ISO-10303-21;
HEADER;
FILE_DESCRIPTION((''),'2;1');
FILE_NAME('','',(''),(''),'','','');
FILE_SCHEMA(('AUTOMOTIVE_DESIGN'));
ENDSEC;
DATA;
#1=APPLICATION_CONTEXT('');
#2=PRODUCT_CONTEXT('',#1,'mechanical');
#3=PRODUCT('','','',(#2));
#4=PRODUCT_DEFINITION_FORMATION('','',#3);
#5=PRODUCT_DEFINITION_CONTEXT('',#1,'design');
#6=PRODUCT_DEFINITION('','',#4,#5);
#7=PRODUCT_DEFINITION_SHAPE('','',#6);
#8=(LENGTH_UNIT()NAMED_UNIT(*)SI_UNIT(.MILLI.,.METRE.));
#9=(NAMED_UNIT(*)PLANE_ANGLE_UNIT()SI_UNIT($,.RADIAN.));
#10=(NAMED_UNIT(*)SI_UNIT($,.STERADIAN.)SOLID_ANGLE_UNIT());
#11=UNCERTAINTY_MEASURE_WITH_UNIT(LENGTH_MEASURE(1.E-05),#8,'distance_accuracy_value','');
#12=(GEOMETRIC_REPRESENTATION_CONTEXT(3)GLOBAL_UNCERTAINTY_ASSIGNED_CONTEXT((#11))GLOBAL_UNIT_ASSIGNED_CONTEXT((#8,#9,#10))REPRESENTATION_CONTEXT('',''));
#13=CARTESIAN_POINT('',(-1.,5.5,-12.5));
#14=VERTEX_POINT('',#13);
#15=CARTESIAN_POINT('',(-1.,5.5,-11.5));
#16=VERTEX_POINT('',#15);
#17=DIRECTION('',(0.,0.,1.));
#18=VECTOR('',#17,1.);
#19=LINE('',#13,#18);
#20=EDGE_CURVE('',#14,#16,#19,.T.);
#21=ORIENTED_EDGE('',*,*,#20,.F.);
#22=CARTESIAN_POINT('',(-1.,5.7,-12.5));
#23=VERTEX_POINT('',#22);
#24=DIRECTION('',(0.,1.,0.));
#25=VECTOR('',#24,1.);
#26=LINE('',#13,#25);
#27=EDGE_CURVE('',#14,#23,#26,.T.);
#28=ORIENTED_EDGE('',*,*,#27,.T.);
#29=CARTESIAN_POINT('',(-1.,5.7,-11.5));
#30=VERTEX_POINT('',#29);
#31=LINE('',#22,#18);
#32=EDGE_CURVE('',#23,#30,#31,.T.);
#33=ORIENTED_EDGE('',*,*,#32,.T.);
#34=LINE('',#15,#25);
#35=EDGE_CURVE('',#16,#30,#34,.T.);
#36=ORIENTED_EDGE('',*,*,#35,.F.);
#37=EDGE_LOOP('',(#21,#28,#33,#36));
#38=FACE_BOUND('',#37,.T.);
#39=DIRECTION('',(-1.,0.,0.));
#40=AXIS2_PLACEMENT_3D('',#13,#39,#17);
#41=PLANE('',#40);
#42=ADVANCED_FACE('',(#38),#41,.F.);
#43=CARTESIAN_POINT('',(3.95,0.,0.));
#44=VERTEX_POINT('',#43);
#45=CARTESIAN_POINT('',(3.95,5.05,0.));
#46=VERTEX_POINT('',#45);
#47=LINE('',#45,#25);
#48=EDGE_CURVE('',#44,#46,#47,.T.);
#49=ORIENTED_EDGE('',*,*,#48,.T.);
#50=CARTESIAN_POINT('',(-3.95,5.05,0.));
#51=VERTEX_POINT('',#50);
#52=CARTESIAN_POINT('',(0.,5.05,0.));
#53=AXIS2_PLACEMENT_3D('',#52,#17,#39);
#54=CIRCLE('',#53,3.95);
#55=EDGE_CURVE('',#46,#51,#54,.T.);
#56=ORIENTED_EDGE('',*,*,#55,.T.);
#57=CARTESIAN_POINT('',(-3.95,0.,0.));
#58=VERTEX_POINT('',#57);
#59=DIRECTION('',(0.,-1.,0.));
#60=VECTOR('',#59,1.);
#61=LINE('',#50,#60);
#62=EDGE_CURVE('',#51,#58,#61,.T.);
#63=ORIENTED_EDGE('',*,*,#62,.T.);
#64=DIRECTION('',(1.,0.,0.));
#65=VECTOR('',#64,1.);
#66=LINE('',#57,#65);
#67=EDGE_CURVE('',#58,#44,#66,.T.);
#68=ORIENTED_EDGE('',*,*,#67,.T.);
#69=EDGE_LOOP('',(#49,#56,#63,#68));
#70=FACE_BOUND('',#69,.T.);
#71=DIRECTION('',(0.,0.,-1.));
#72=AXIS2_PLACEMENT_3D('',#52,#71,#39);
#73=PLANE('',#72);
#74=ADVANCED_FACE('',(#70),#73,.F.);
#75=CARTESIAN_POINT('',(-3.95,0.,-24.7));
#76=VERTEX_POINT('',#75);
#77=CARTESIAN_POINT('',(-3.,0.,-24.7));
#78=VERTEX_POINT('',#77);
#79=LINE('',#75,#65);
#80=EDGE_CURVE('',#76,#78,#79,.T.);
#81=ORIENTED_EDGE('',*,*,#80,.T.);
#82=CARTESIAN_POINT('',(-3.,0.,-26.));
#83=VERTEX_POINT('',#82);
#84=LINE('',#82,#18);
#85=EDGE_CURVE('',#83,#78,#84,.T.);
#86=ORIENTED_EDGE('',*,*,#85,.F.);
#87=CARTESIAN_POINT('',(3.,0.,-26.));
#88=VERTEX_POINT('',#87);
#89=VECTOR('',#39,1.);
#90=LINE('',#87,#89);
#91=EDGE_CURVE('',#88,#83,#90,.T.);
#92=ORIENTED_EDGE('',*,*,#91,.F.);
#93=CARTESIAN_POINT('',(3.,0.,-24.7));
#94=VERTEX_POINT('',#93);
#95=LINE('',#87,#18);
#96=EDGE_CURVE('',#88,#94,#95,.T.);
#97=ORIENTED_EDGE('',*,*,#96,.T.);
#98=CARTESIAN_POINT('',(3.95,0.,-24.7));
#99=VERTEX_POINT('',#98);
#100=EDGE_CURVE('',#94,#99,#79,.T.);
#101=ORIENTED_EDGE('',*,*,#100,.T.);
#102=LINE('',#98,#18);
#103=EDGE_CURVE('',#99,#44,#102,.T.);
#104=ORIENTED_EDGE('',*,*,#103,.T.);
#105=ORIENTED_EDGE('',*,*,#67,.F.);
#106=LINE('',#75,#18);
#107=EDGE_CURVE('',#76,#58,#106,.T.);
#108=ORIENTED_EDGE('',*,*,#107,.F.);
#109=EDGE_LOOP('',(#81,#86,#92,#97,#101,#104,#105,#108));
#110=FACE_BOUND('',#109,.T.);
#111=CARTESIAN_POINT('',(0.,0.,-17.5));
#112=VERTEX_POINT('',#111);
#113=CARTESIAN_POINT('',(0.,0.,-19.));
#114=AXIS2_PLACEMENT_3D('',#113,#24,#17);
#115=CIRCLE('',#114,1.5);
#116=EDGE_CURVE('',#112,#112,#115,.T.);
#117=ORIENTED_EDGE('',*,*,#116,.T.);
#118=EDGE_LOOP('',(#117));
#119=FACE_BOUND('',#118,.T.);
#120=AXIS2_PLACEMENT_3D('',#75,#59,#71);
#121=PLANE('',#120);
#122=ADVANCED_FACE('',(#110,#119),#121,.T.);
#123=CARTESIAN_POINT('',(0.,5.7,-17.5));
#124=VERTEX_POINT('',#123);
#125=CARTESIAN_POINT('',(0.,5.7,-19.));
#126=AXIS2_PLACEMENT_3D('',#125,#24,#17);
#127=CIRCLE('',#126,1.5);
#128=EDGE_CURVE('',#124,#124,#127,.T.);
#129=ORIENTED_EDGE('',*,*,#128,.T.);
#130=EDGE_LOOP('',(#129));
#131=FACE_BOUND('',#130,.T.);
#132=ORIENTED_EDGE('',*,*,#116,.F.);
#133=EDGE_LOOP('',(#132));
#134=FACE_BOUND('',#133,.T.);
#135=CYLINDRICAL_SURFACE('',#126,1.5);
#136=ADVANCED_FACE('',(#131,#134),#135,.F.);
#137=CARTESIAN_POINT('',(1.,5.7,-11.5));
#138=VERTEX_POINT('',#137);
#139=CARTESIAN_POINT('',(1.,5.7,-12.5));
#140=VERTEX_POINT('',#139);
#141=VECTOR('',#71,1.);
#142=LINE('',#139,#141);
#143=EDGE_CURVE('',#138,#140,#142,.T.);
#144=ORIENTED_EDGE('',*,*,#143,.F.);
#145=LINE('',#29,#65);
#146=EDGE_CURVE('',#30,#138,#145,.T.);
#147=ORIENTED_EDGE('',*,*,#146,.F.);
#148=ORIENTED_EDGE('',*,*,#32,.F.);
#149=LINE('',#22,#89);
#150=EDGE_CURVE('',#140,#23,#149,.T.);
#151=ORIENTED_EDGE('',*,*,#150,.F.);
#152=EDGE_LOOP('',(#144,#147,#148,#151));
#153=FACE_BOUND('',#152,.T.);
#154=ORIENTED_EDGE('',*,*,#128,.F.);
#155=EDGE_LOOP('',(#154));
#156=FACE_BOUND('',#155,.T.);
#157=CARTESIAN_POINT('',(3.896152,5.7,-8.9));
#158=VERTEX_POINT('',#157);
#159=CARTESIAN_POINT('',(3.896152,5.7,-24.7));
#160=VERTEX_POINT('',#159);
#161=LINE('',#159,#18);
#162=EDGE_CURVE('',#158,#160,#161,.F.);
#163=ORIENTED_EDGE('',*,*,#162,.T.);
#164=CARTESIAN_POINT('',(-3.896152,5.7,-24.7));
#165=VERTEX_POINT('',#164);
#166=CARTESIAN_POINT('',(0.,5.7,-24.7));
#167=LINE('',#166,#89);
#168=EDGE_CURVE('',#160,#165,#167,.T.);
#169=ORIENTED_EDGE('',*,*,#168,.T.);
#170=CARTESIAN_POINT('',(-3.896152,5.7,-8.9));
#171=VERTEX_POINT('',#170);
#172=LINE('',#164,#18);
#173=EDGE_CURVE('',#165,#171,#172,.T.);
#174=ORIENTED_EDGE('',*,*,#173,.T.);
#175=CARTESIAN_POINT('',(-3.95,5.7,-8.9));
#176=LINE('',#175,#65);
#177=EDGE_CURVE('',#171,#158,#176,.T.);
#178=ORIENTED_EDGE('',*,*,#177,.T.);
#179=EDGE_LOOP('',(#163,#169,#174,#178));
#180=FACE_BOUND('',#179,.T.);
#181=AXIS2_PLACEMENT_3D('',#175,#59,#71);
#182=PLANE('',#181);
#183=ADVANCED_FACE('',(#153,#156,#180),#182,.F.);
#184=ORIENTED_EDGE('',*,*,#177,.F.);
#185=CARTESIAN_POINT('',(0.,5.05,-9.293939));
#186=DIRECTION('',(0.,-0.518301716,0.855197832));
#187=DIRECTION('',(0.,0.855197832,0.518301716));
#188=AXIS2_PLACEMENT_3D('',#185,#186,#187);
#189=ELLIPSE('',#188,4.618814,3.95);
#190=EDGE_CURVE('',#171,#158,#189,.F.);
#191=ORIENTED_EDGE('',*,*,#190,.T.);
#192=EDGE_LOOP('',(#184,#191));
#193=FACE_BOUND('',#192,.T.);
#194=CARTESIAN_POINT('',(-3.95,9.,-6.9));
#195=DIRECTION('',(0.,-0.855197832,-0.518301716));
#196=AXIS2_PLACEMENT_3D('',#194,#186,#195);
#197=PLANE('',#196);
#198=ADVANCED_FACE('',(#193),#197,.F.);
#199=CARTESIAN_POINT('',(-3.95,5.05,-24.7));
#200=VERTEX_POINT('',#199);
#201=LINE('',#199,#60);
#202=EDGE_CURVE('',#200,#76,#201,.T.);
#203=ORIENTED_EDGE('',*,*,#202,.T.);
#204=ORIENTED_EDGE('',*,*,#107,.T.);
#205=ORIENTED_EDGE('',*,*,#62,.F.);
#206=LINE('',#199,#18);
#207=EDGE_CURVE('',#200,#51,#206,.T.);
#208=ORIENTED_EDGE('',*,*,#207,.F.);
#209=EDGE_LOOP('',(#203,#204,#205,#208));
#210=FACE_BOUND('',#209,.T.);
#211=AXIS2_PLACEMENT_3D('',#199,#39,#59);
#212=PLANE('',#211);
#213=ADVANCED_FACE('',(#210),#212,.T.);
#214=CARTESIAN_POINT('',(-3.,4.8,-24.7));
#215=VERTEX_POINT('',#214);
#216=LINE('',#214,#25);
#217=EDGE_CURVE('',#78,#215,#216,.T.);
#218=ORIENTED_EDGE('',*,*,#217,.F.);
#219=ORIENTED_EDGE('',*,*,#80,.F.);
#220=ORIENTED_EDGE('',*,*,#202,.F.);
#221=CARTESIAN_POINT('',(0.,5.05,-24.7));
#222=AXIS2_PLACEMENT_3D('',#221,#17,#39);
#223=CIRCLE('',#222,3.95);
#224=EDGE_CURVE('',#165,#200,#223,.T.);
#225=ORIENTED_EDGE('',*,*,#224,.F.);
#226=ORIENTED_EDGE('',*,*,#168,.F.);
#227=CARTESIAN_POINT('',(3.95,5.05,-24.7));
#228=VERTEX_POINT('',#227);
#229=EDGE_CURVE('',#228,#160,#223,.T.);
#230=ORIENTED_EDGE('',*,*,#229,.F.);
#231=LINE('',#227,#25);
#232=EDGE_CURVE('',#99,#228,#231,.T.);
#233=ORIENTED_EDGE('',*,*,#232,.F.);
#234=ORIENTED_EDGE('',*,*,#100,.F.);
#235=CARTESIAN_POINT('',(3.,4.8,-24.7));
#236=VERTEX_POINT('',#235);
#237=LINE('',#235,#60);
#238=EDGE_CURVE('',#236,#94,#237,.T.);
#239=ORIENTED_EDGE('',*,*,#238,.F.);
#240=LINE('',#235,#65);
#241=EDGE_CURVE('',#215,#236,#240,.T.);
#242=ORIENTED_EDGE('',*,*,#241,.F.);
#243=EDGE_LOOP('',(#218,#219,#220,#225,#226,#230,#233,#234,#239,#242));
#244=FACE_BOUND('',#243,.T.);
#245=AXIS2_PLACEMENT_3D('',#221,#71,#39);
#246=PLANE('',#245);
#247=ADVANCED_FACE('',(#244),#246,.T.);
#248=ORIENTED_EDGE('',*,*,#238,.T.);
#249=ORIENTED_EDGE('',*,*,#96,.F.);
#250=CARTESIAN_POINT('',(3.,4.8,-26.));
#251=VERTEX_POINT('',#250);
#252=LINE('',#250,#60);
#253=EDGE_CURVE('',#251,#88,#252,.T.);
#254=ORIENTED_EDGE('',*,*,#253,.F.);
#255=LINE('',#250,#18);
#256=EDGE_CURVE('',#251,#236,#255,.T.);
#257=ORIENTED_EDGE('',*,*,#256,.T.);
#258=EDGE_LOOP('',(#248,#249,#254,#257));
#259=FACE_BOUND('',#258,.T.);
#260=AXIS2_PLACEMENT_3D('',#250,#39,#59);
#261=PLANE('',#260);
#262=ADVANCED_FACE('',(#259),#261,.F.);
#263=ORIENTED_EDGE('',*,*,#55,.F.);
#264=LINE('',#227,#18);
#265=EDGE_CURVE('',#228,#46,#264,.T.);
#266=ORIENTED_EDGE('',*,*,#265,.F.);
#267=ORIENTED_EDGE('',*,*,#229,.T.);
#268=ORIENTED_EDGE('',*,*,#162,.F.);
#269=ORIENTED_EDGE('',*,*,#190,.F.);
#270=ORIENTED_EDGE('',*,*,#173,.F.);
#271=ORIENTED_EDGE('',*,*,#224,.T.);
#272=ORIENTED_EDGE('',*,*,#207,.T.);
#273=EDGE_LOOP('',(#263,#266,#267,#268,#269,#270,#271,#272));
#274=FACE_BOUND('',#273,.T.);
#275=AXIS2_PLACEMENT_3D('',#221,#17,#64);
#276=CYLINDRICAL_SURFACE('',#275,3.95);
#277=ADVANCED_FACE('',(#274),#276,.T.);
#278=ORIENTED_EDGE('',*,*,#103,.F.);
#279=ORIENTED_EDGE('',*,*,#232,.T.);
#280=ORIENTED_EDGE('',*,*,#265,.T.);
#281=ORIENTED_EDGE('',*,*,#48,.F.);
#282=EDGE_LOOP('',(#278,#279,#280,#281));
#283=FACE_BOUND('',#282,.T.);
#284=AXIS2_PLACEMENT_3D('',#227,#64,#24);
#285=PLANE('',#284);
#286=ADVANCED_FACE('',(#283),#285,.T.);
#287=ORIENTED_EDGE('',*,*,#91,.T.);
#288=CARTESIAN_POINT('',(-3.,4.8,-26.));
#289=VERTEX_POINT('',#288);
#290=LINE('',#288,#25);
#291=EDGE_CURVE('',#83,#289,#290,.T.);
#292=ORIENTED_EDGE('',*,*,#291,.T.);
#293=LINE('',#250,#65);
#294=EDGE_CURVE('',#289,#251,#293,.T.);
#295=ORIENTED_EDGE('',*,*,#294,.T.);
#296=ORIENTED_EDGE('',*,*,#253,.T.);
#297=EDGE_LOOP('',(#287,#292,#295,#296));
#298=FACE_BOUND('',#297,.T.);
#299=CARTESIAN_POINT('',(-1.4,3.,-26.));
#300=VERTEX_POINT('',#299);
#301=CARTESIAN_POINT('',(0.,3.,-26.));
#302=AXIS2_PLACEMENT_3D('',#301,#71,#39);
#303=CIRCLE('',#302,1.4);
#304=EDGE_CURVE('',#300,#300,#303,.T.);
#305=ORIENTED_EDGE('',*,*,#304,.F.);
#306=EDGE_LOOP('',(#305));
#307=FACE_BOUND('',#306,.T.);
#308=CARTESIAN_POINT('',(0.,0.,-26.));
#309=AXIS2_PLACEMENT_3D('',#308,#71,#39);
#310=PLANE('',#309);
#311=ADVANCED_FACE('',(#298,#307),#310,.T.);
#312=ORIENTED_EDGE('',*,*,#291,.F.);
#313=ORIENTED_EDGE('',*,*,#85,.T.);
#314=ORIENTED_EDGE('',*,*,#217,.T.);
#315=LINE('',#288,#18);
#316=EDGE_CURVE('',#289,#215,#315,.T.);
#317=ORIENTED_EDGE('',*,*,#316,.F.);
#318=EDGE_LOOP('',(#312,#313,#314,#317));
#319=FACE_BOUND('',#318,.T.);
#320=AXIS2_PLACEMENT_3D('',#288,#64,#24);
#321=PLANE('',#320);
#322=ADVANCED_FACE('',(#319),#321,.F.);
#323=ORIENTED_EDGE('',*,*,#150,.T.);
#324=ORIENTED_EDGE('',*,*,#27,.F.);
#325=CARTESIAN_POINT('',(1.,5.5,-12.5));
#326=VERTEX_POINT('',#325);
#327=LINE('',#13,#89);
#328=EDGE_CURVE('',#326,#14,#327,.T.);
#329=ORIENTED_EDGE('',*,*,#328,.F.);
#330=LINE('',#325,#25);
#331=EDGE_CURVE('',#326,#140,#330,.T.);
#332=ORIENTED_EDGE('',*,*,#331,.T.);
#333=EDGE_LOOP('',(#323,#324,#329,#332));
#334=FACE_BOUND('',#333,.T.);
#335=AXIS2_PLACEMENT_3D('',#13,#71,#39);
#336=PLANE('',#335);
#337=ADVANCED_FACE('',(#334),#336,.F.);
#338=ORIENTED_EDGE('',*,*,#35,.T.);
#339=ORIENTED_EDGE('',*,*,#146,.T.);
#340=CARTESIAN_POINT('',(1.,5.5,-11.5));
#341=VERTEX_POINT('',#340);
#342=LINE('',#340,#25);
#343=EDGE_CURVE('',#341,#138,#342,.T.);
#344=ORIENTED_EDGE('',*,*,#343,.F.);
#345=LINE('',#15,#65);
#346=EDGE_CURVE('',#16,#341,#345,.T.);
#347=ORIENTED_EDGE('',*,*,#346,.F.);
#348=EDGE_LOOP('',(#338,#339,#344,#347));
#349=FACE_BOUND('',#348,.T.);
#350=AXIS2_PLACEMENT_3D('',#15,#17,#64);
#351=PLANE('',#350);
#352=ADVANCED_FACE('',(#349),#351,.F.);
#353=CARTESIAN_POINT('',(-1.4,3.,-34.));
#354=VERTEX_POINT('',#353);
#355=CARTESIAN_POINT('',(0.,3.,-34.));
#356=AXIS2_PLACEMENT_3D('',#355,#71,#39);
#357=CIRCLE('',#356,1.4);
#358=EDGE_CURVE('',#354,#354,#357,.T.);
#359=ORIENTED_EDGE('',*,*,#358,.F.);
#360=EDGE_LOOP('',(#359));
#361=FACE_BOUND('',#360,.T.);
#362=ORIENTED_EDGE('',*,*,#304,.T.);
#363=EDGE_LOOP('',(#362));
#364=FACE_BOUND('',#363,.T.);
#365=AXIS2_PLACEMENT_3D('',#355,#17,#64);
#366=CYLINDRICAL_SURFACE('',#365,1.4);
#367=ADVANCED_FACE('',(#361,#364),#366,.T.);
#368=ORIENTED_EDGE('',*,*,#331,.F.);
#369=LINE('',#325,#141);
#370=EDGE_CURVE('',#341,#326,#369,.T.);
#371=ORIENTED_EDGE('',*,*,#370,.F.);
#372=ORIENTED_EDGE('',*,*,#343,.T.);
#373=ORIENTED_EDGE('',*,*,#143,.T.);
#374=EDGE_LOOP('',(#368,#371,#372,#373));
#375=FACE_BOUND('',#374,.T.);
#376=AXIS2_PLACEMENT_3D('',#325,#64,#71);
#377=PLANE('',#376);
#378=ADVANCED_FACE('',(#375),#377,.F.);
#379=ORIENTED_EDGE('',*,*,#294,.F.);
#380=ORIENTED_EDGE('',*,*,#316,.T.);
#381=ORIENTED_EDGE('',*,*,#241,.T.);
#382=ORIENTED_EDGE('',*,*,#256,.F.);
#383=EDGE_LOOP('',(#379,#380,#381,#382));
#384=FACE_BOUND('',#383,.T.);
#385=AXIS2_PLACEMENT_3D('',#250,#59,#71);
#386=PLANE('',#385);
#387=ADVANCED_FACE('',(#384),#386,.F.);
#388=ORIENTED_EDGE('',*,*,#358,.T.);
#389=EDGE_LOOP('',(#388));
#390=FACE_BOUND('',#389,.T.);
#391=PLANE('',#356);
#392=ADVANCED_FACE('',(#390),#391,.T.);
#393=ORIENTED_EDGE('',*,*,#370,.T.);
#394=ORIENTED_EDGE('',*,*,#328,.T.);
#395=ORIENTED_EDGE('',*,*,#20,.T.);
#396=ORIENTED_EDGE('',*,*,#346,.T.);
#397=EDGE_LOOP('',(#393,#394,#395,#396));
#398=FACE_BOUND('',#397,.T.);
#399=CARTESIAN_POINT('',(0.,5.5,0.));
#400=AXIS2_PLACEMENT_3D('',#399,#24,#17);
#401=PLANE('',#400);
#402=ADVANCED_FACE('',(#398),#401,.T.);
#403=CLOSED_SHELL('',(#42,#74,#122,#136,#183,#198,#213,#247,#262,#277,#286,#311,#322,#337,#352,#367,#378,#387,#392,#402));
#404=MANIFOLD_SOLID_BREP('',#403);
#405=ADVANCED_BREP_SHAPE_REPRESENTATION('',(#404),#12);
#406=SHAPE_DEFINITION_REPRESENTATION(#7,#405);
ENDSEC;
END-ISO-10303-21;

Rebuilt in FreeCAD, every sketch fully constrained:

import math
import FreeCAD as App
import Part
import Sketcher
from FreeCAD import Vector

doc = App.newDocument("Part")
body = doc.addObject("PartDesign::Body", "Body")

sketch1 = body.newObject("Sketcher::SketchObject", "Sketch")
sketch1.AttachmentSupport = (doc.getObject("XY_Plane"), [""])
sketch1.MapMode = "FlatFace"
sketch1.addGeometry(Part.LineSegment(Vector(-4, 5, 0), Vector(-4, 0, 0)), False)
sketch1.addGeometry(Part.LineSegment(Vector(-4, 0, 0), Vector(4, 0, 0)), False)
sketch1.addGeometry(Part.LineSegment(Vector(4, 0, 0), Vector(4, 5, 0)), False)
sketch1.addGeometry(Part.ArcOfCircle(Part.Circle(Vector(0, 5, 0), Vector(0, 0, 1), 4), math.radians(0), math.radians(180)), False)
sketch1.addConstraint(Sketcher.Constraint("Coincident", 0, 2, 1, 1))
sketch1.addConstraint(Sketcher.Constraint("Coincident", 1, 2, 2, 1))
sketch1.addConstraint(Sketcher.Constraint("Tangent", 2, 2, 3, 1))
sketch1.addConstraint(Sketcher.Constraint("Tangent", 3, 2, 0, 1))
sketch1.addConstraint(Sketcher.Constraint("Vertical", 0))
sketch1.addConstraint(Sketcher.Constraint("Horizontal", 1))
sketch1.addConstraint(Sketcher.Constraint("Vertical", 2))
sketch1.addConstraint(Sketcher.Constraint("Symmetric", 0, 2, 1, 2, -1, 1))
sketch1.addConstraint(Sketcher.Constraint("Radius", 3, 3.95))
sketch1.addConstraint(Sketcher.Constraint("DistanceY", 0, 2, 0, 1, 5.05))
pad1 = body.newObject("PartDesign::Pad", "Pad")
pad1.Profile = sketch1
pad1.Length = 24.7
pad1.Reversed = True

sketch2 = body.newObject("Sketcher::SketchObject", "Sketch001")
sketch2.AttachmentSupport = (doc.getObject("YZ_Plane"), [""])
sketch2.MapMode = "FlatFace"
sketch2.addGeometry(Part.LineSegment(Vector(9, -6.9, 0), Vector(5.7, -8.9, 0)), False)
sketch2.addGeometry(Part.LineSegment(Vector(5.7, -8.9, 0), Vector(5.7, -24.7, 0)), False)
sketch2.addGeometry(Part.LineSegment(Vector(5.7, -24.7, 0), Vector(9, -24.7, 0)), False)
sketch2.addGeometry(Part.LineSegment(Vector(9, -24.7, 0), Vector(9, -6.9, 0)), False)
sketch2.addConstraint(Sketcher.Constraint("Coincident", 0, 2, 1, 1))
sketch2.addConstraint(Sketcher.Constraint("Coincident", 1, 2, 2, 1))
sketch2.addConstraint(Sketcher.Constraint("Coincident", 2, 2, 3, 1))
sketch2.addConstraint(Sketcher.Constraint("Coincident", 3, 2, 0, 1))
sketch2.addConstraint(Sketcher.Constraint("Vertical", 1))
sketch2.addConstraint(Sketcher.Constraint("Horizontal", 2))
sketch2.addConstraint(Sketcher.Constraint("Vertical", 3))
sketch2.addConstraint(Sketcher.Constraint("DistanceX", 2, 1, 2, 2, 3.3))
sketch2.addConstraint(Sketcher.Constraint("DistanceY", 1, 2, 1, 1, 15.8))
sketch2.addConstraint(Sketcher.Constraint("DistanceY", 3, 1, 3, 2, 17.8))
sketch2.addConstraint(Sketcher.Constraint("DistanceX", -1, 1, 2, 2, 9.0))
sketch2.addConstraint(Sketcher.Constraint("DistanceY", 0, 2, -1, 1, 8.9))
pocket1 = body.newObject("PartDesign::Pocket", "Pocket")
pocket1.Profile = sketch2
pocket1.Type = "ThroughAll"
pocket1.Midplane = True

sketch3 = body.newObject("Sketcher::SketchObject", "Sketch002")
sketch3.AttachmentSupport = (doc.getObject("XZ_Plane"), [""])
sketch3.MapMode = "FlatFace"
sketch3.AttachmentOffset = App.Placement(Vector(0, 0, -5.7), App.Rotation())
sketch3.addGeometry(Part.Circle(Vector(0, -19, 0), Vector(0, 0, 1), 1.5), False)
sketch3.addConstraint(Sketcher.Constraint("PointOnObject", 0, 3, -2))
sketch3.addConstraint(Sketcher.Constraint("Diameter", 0, 3.0))
sketch3.addConstraint(Sketcher.Constraint("DistanceY", 0, 3, -1, 1, 19.0))
doc.recompute()
hole = body.newObject("PartDesign::Hole", "Hole")
hole.Profile = sketch3
hole.ThreadType = "None"
hole.Diameter = 3
hole.DepthType = "ThroughAll"
hole.Reversed = True

sketch4 = body.newObject("Sketcher::SketchObject", "Sketch003")
sketch4.AttachmentSupport = (doc.getObject("XY_Plane"), [""])
sketch4.MapMode = "FlatFace"
sketch4.AttachmentOffset = App.Placement(Vector(0, 0, -24.7), App.Rotation())
sketch4.addGeometry(Part.LineSegment(Vector(3, 4.8, 0), Vector(3, 0, 0)), False)
sketch4.addGeometry(Part.LineSegment(Vector(3, 0, 0), Vector(-3, 0, 0)), False)
sketch4.addGeometry(Part.LineSegment(Vector(-3, 0, 0), Vector(-3, 4.8, 0)), False)
sketch4.addGeometry(Part.LineSegment(Vector(-3, 4.8, 0), Vector(3, 4.8, 0)), False)
sketch4.addConstraint(Sketcher.Constraint("Coincident", 0, 2, 1, 1))
sketch4.addConstraint(Sketcher.Constraint("Coincident", 1, 2, 2, 1))
sketch4.addConstraint(Sketcher.Constraint("Coincident", 2, 2, 3, 1))
sketch4.addConstraint(Sketcher.Constraint("Coincident", 3, 2, 0, 1))
sketch4.addConstraint(Sketcher.Constraint("Vertical", 0))
sketch4.addConstraint(Sketcher.Constraint("Horizontal", 1))
sketch4.addConstraint(Sketcher.Constraint("Vertical", 2))
sketch4.addConstraint(Sketcher.Constraint("Horizontal", 3))
sketch4.addConstraint(Sketcher.Constraint("Symmetric", 0, 2, 1, 2, -1, 1))
sketch4.addConstraint(Sketcher.Constraint("DistanceX", 1, 2, 1, 1, 6.0))
sketch4.addConstraint(Sketcher.Constraint("DistanceY", 0, 2, 0, 1, 4.8))
pad2 = body.newObject("PartDesign::Pad", "Pad001")
pad2.Profile = sketch4
pad2.Length = 1.3
pad2.Reversed = True

sketch5 = body.newObject("Sketcher::SketchObject", "Sketch004")
sketch5.AttachmentSupport = (doc.getObject("XY_Plane"), [""])
sketch5.MapMode = "FlatFace"
sketch5.AttachmentOffset = App.Placement(Vector(0, 0, -26), App.Rotation())
sketch5.addGeometry(Part.Circle(Vector(0, 3, 0), Vector(0, 0, 1), 1.4), False)
sketch5.addConstraint(Sketcher.Constraint("PointOnObject", 0, 3, -2))
sketch5.addConstraint(Sketcher.Constraint("Diameter", 0, 2.8))
sketch5.addConstraint(Sketcher.Constraint("DistanceY", -1, 1, 0, 3, 3.0))
pad3 = body.newObject("PartDesign::Pad", "Pad002")
pad3.Profile = sketch5
pad3.Length = 8
pad3.Reversed = True

sketch6 = body.newObject("Sketcher::SketchObject", "Sketch005")
sketch6.AttachmentSupport = (doc.getObject("XZ_Plane"), [""])
sketch6.MapMode = "FlatFace"
sketch6.AttachmentOffset = App.Placement(Vector(0, 0, -5.7), App.Rotation())
sketch6.addGeometry(Part.LineSegment(Vector(-1, -12.5, 0), Vector(-1, -11.5, 0)), False)
sketch6.addGeometry(Part.LineSegment(Vector(-1, -11.5, 0), Vector(1, -11.5, 0)), False)
sketch6.addGeometry(Part.LineSegment(Vector(1, -11.5, 0), Vector(1, -12.5, 0)), False)
sketch6.addGeometry(Part.LineSegment(Vector(1, -12.5, 0), Vector(-1, -12.5, 0)), False)
sketch6.addConstraint(Sketcher.Constraint("Coincident", 0, 2, 1, 1))
sketch6.addConstraint(Sketcher.Constraint("Coincident", 1, 2, 2, 1))
sketch6.addConstraint(Sketcher.Constraint("Coincident", 2, 2, 3, 1))
sketch6.addConstraint(Sketcher.Constraint("Coincident", 3, 2, 0, 1))
sketch6.addConstraint(Sketcher.Constraint("Vertical", 0))
sketch6.addConstraint(Sketcher.Constraint("Horizontal", 1))
sketch6.addConstraint(Sketcher.Constraint("Vertical", 2))
sketch6.addConstraint(Sketcher.Constraint("Horizontal", 3))
sketch6.addConstraint(Sketcher.Constraint("DistanceX", 1, 1, 1, 2, 2.0))
sketch6.addConstraint(Sketcher.Constraint("DistanceY", 0, 1, 0, 2, 1.0))
sketch6.addConstraint(Sketcher.Constraint("DistanceX", 0, 2, -1, 1, 1.0))
sketch6.addConstraint(Sketcher.Constraint("DistanceY", 0, 2, -1, 1, 11.5))
pocket2 = body.newObject("PartDesign::Pocket", "Pocket001")
pocket2.Profile = sketch6
pocket2.Length = 0.2
pocket2.Reversed = True

doc.recompute()
